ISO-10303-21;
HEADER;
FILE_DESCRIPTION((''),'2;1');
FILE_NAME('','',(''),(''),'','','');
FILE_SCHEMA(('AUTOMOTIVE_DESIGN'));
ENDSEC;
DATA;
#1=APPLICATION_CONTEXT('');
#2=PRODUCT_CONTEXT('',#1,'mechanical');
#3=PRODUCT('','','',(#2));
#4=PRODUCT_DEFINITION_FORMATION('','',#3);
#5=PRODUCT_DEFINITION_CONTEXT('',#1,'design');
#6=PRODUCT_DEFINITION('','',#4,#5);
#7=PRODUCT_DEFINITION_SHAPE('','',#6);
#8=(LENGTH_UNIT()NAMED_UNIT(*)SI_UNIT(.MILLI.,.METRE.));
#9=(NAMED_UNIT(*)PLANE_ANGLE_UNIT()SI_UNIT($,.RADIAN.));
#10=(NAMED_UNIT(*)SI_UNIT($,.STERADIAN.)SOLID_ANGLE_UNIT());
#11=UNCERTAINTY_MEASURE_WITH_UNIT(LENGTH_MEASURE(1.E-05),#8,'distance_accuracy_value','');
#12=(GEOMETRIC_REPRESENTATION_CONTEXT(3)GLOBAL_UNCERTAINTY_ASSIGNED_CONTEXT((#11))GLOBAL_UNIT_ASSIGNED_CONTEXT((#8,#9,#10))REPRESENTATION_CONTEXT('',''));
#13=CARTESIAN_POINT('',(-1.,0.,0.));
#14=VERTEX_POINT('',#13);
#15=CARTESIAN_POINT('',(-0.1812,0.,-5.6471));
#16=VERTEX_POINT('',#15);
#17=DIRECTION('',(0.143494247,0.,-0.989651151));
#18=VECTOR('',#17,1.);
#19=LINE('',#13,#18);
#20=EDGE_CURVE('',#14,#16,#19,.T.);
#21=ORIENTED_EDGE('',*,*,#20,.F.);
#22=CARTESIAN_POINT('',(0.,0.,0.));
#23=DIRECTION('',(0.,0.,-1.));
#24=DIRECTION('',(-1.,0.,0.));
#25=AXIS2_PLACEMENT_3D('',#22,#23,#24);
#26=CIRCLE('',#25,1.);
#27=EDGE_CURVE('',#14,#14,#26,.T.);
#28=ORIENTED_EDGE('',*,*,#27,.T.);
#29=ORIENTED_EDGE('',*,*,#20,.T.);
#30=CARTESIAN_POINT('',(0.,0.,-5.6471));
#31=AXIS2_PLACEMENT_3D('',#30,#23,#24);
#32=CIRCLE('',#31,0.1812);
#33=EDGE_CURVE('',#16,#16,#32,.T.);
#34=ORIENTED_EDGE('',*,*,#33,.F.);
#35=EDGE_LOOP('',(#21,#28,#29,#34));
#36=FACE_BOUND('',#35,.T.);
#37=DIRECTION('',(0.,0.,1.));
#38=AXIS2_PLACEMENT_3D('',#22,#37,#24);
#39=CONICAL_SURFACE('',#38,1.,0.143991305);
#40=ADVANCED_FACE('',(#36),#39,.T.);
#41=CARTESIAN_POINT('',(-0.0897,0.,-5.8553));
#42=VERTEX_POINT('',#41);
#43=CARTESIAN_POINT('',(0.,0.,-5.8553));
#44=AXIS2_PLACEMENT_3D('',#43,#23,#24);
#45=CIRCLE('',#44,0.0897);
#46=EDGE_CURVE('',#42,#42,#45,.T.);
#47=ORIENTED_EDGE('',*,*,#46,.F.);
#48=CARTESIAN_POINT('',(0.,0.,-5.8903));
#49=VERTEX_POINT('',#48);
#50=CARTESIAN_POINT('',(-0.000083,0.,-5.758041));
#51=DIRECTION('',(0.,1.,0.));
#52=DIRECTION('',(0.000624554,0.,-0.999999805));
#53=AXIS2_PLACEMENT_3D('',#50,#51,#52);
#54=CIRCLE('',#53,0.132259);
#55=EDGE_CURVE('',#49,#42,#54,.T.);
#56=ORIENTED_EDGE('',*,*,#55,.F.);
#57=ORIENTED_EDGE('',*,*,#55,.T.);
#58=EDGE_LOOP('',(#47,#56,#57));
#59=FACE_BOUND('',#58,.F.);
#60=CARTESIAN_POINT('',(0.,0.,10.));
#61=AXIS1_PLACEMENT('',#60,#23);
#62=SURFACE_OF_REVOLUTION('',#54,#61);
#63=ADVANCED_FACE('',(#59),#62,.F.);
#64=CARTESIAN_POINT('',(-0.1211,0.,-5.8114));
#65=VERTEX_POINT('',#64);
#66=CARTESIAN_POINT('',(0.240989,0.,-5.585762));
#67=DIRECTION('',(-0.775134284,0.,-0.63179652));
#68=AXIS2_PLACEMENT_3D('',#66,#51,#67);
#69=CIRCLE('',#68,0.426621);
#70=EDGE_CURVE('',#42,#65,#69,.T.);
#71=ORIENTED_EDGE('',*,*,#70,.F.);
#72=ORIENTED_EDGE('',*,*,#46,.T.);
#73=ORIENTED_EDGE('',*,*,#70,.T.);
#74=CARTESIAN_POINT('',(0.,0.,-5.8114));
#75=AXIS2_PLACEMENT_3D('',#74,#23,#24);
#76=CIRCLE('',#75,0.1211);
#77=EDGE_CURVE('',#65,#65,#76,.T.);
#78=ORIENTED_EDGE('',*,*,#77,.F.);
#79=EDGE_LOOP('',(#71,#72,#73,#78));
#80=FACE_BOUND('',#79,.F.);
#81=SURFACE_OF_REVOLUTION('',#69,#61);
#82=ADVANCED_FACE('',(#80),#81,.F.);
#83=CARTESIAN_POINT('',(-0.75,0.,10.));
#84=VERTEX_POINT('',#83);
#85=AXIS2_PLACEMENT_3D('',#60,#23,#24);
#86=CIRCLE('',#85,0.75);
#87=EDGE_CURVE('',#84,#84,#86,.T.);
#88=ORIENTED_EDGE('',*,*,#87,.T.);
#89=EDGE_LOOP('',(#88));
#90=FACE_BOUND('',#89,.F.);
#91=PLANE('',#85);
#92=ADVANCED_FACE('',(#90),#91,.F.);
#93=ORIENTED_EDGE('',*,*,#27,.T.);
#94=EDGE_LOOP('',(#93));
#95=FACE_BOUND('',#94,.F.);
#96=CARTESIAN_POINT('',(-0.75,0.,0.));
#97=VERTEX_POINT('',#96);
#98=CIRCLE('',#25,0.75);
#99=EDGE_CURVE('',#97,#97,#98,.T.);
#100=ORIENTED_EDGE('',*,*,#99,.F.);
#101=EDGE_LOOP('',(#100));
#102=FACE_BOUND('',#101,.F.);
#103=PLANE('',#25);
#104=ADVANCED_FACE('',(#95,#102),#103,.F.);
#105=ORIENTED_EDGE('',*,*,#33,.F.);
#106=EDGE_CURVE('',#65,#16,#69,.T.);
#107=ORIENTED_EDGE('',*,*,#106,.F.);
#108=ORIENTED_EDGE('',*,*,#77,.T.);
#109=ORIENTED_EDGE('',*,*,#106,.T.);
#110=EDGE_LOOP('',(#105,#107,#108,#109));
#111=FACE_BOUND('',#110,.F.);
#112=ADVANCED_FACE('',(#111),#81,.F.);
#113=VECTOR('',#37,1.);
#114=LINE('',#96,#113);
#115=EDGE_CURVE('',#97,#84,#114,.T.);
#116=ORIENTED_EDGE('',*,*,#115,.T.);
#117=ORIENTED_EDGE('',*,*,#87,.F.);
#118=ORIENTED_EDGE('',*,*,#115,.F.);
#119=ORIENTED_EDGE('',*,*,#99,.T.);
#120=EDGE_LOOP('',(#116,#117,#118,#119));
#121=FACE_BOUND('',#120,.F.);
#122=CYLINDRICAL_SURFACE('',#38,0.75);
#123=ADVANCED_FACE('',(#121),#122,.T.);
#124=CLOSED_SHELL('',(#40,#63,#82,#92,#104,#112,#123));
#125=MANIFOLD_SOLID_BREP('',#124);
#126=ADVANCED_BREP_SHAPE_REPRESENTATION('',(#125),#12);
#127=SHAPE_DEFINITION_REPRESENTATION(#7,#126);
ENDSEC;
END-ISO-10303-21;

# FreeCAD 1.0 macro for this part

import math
import FreeCAD as App
import Part
import Sketcher
from FreeCAD import Vector
Q = App.Units.Quantity

doc = App.newDocument("Part")
body = doc.addObject("PartDesign::Body", "Body")

# Sketch on XZ plane
sketch1 = body.newObject("Sketcher::SketchObject", "Sketch")
sketch1.AttachmentSupport = (doc.getObject("XZ_Plane"), [""])
sketch1.MapMode = "FlatFace"
sketch1.addGeometry(Part.LineSegment(Vector(-0.18, -5.65, 0), Vector(-1, 0, 0)), False)
sketch1.addGeometry(Part.LineSegment(Vector(-1, 0, 0), Vector(-0.75, 0, 0)), False)
sketch1.addGeometry(Part.LineSegment(Vector(-0.75, 0, 0), Vector(-0.75, 10, 0)), False)
sketch1.addGeometry(Part.LineSegment(Vector(-0.75, 10, 0), Vector(0, 10, 0)), False)
sketch1.addGeometry(Part.LineSegment(Vector(0, 10, 0), Vector(0, -5.89, 0)), False)
sketch1.addGeometry(Part.ArcOfCircle(Part.Circle(Vector(0, -5.76, 0), Vector(0, 0, 1), 0.13), math.radians(-133), math.radians(-90)), False)
sketch1.addGeometry(Part.ArcOfCircle(Part.Circle(Vector(0.24, -5.59, 0), Vector(0, 0, 1), 0.43), math.radians(-172), math.radians(-141)), False)
sketch1.addConstraint(Sketcher.Constraint("Coincident", 0, 2, 1, 1))
sketch1.addConstraint(Sketcher.Constraint("Coincident", 1, 2, 2, 1))
sketch1.addConstraint(Sketcher.Constraint("Coincident", 2, 2, 3, 1))
sketch1.addConstraint(Sketcher.Constraint("Coincident", 3, 2, 4, 1))
sketch1.addConstraint(Sketcher.Constraint("Coincident", 4, 2, 5, 2))
sketch1.addConstraint(Sketcher.Constraint("Coincident", 5, 1, 6, 2))
sketch1.addConstraint(Sketcher.Constraint("Tangent", 6, 1, 0, 1))
sketch1.addConstraint(Sketcher.Constraint("Horizontal", 1))
sketch1.addConstraint(Sketcher.Constraint("Vertical", 2))
sketch1.addConstraint(Sketcher.Constraint("Horizontal", 3))
sketch1.addConstraint(Sketcher.Constraint("Vertical", 4))
sketch1.addConstraint(Sketcher.Constraint("PointOnObject", 5, 3, -2))
sketch1.addConstraint(Sketcher.Constraint("PointOnObject", 0, 2, -1))
sketch1.addConstraint(Sketcher.Constraint("PointOnObject", 3, 2, -2))
sketch1.addConstraint(Sketcher.Constraint("DistanceX", 1, 1, 1, 2, Q("0.25 mm")))
sketch1.addConstraint(Sketcher.Constraint("DistanceY", 2, 1, 2, 2, Q("10 mm")))
sketch1.addConstraint(Sketcher.Constraint("DistanceX", 0, 2, -1, 1, Q("1 mm")))
sketch1.addConstraint(Sketcher.Constraint("Angle", 0, Q("98.25 deg")))
sketch1.addConstraint(Sketcher.Constraint("Radius", 5, Q("0.1322 mm")))
sketch1.addConstraint(Sketcher.Constraint("Radius", 6, Q("0.4262 mm")))
sketch1.addConstraint(Sketcher.Constraint("DistanceY", 4, 2, 4, 1, Q("15.8903 mm")))
sketch1.addConstraint(Sketcher.Constraint("DistanceY", 6, 3, -1, 1, Q("5.586 mm")))
revolution = body.newObject("PartDesign::Revolution", "Revolution")
revolution.Profile = sketch1
revolution.ReferenceAxis = (sketch1, ["V_Axis"])
revolution.Angle = 360

doc.recompute()
